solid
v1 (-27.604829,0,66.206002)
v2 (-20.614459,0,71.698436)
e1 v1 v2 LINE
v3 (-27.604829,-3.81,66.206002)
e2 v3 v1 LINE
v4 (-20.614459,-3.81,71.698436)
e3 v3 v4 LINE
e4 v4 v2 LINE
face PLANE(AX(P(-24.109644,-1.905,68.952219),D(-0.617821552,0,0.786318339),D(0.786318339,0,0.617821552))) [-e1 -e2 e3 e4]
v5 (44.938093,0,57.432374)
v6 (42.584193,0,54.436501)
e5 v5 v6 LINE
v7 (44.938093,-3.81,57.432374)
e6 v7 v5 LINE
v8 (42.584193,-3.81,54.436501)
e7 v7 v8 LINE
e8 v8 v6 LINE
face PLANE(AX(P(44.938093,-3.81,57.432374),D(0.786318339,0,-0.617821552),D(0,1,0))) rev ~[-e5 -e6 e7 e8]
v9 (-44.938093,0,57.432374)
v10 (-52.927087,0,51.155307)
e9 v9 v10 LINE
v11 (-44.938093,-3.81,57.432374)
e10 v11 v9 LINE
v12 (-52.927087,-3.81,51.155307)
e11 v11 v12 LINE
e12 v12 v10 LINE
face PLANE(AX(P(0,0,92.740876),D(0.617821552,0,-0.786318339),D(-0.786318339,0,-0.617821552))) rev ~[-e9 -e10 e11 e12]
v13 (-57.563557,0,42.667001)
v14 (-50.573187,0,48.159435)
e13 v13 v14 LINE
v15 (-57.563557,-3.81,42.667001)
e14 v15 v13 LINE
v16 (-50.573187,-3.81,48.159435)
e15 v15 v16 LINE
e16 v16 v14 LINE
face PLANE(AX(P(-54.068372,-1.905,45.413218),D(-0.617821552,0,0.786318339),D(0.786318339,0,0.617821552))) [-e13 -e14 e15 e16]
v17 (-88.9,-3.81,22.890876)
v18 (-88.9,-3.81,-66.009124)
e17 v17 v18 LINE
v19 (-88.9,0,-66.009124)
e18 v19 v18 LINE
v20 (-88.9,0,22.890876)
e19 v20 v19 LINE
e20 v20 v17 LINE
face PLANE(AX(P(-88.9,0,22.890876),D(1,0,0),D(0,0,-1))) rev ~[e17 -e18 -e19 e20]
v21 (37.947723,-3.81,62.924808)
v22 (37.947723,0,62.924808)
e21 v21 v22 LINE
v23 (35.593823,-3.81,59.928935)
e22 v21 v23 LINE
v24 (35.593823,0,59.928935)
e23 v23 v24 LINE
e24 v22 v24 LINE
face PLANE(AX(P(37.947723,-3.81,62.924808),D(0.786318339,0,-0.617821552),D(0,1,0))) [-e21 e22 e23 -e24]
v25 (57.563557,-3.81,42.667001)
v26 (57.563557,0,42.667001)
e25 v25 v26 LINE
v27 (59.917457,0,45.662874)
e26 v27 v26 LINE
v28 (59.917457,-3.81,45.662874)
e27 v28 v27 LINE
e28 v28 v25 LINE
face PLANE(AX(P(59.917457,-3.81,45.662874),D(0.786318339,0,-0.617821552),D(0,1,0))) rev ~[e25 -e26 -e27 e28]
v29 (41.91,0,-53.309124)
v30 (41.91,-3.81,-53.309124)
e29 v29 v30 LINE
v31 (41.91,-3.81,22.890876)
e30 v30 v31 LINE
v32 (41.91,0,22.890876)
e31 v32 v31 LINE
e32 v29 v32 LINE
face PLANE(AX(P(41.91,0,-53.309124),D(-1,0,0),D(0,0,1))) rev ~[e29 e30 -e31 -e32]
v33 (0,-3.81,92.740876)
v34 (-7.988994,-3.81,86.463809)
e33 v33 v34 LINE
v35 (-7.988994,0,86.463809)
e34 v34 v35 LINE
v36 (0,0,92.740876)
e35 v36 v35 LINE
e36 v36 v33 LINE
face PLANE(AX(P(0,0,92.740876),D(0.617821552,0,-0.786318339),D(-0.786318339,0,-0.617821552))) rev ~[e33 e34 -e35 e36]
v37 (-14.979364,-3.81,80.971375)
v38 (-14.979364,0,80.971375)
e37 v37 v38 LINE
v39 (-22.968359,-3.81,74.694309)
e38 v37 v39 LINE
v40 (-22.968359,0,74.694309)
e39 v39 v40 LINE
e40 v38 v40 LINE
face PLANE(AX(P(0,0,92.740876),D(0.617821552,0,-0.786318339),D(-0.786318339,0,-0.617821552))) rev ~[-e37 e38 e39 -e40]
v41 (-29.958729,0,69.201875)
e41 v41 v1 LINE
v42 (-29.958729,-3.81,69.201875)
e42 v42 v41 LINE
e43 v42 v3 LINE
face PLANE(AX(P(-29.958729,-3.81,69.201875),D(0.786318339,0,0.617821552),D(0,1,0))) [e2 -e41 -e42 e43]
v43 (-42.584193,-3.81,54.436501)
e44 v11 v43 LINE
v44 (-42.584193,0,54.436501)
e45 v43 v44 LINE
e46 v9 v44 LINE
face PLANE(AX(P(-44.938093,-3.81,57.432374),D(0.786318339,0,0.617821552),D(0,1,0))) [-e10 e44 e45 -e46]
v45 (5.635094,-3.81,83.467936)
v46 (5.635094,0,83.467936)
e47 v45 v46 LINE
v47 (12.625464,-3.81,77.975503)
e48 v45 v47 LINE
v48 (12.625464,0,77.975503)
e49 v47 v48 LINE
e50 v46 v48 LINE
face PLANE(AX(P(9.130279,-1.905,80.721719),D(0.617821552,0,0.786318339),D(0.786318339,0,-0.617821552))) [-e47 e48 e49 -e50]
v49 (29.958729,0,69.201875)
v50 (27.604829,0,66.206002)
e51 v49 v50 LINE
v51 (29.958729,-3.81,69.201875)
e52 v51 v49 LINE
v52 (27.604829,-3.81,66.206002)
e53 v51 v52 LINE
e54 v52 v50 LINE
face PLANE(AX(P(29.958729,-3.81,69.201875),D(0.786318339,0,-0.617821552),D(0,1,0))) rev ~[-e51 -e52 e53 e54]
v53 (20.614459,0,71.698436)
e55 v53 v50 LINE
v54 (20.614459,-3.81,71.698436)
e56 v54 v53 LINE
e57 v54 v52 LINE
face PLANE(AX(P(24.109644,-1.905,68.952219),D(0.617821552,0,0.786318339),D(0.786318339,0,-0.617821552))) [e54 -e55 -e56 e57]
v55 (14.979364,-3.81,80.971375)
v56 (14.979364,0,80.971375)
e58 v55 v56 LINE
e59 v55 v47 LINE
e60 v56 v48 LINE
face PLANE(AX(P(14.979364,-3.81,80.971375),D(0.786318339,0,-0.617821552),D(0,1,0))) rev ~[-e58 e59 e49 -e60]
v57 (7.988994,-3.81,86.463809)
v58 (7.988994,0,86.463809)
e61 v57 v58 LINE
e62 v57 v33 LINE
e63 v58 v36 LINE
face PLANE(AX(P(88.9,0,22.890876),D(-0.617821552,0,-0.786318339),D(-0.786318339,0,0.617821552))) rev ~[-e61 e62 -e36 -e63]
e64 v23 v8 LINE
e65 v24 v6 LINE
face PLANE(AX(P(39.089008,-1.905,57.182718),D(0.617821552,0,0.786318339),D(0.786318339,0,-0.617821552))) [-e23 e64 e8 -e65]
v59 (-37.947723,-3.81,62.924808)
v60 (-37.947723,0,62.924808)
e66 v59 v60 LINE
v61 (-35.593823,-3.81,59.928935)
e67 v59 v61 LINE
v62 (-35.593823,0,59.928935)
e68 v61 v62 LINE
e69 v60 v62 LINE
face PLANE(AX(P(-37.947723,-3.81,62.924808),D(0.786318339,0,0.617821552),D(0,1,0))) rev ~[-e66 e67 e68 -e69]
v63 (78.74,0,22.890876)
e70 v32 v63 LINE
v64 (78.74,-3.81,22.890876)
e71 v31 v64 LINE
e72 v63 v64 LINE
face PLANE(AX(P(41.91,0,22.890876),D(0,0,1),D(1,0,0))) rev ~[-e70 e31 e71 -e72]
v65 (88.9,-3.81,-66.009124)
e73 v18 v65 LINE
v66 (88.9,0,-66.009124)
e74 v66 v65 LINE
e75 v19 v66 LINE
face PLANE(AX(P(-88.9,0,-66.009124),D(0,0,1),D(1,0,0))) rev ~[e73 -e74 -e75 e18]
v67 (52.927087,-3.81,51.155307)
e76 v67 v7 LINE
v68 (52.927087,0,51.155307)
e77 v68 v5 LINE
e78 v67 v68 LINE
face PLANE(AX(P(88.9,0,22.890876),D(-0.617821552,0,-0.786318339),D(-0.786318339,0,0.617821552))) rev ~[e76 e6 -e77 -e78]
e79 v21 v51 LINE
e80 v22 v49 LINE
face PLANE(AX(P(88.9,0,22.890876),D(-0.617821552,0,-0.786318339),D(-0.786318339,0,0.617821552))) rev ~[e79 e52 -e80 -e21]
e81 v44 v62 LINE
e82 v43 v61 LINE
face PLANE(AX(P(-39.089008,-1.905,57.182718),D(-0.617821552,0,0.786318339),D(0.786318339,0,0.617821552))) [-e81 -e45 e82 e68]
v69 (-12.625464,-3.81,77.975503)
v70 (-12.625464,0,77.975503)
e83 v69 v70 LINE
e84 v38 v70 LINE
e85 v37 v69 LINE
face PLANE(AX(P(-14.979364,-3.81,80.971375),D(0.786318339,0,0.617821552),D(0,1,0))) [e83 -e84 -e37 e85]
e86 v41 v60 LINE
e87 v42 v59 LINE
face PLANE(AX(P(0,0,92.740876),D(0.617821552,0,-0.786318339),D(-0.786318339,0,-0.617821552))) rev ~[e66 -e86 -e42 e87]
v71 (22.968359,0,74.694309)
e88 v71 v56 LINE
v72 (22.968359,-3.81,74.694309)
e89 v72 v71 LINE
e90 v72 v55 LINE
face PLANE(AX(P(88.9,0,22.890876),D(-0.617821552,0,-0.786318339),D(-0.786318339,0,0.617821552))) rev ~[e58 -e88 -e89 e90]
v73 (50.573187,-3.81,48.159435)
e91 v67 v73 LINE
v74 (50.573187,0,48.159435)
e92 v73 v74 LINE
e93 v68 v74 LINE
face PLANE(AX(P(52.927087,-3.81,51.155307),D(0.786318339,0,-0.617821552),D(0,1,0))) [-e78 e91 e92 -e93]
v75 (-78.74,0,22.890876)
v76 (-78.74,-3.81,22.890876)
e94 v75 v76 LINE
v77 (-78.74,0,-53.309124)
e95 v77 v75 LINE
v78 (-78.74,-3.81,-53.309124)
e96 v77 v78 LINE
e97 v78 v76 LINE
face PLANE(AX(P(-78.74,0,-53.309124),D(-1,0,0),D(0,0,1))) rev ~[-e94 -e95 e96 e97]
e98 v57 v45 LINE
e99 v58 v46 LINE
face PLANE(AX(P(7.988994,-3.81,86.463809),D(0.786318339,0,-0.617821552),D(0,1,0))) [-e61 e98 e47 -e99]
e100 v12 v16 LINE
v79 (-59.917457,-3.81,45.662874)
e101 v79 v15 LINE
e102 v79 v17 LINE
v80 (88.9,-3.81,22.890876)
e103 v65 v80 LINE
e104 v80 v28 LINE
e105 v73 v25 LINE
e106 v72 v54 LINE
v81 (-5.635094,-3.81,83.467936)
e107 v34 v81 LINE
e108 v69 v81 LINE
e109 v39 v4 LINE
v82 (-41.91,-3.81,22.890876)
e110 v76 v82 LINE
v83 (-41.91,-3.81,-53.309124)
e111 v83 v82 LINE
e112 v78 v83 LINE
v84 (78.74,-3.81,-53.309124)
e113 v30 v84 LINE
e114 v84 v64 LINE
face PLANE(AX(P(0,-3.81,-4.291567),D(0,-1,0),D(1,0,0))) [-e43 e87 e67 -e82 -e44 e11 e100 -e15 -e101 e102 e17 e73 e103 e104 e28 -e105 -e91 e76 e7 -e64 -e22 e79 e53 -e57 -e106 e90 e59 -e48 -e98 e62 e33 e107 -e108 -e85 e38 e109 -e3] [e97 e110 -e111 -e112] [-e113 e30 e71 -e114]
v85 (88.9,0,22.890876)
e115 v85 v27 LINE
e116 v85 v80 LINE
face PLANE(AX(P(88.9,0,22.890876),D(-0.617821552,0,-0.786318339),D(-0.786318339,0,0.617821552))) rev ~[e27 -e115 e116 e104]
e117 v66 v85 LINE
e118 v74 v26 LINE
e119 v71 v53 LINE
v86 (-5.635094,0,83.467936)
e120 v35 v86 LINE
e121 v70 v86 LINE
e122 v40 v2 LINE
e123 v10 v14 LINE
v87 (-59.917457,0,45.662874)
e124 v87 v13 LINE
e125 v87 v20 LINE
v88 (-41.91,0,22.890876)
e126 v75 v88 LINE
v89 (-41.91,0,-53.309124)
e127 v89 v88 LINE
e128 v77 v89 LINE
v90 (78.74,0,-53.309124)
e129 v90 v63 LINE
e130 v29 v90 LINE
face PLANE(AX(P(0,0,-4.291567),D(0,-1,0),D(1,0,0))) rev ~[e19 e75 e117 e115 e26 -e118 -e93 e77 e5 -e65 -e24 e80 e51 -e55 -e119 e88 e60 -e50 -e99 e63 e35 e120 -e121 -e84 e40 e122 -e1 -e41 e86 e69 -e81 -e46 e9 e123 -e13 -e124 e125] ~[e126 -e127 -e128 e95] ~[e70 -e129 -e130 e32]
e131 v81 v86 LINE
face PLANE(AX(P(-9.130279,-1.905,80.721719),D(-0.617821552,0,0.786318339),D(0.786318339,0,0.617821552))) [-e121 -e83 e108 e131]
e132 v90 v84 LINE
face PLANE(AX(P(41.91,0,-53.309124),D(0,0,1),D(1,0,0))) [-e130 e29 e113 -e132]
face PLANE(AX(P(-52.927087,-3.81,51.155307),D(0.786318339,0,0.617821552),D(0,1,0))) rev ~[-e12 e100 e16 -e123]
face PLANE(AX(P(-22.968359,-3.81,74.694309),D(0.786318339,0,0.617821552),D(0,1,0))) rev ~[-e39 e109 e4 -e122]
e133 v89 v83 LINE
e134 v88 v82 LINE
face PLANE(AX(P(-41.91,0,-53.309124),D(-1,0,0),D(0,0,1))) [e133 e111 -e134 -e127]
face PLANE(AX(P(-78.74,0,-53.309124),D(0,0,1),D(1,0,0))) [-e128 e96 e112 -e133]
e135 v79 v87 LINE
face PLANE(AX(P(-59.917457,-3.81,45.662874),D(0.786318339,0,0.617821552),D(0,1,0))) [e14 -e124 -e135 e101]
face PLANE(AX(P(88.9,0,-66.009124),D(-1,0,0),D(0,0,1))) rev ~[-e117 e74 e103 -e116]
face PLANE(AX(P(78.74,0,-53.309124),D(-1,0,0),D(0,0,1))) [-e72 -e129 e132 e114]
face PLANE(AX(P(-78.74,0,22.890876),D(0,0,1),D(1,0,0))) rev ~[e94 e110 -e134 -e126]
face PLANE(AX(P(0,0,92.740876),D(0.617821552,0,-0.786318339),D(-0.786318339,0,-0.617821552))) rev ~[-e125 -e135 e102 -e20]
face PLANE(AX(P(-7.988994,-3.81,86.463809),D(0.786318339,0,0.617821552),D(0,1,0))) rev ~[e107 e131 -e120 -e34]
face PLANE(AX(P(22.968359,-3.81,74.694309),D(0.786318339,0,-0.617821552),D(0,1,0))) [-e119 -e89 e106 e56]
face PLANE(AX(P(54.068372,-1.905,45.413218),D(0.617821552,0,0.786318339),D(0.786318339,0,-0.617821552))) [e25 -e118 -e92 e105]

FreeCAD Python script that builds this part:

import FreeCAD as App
import Part
import Sketcher

V = App.Vector
Q = App.Units.Quantity


def add_polygon(sketch, points):
    """Adds a closed chain of lines whose ends are joined by coincident constraints."""
    first, n = sketch.GeometryCount, len(points)
    for a, b in zip(points, points[1:] + points[:1]):
        sketch.addGeometry(Part.LineSegment(App.Vector(*a, 0), App.Vector(*b, 0)), False)
    for i in range(n):
        sketch.addConstraint(Sketcher.Constraint("Coincident", first + i, 2, first + (i + 1) % n, 1))

doc = App.newDocument("Part")
body = doc.addObject("PartDesign::Body", "Body")

# Sketch on XZ plane
sketch1 = body.newObject("Sketcher::SketchObject", "Sketch")
sketch1.AttachmentSupport = (doc.getObject("XZ_Plane"), [""])
sketch1.MapMode = "FlatFace"
add_polygon(sketch1, [(-89, -66), (89, -66), (89, 23), (0, 93), (-89, 23)])  # lines 0-4
add_polygon(sketch1, [(-42, -53), (-79, -53), (-79, 23), (-42, 23)])  # lines 5-8
add_polygon(sketch1, [(79, -53), (42, -53), (42, 23), (79, 23)])  # lines 9-12
sketch1.addConstraint([
    Sketcher.Constraint("Horizontal", 0),
    Sketcher.Constraint("Vertical", 1),
    Sketcher.Constraint("Vertical", 4),
    Sketcher.Constraint("Horizontal", 5),
    Sketcher.Constraint("Vertical", 6),
    Sketcher.Constraint("Horizontal", 7),
    Sketcher.Constraint("Vertical", 8),
    Sketcher.Constraint("Horizontal", 9),
    Sketcher.Constraint("Vertical", 10),
    Sketcher.Constraint("Horizontal", 11),
    Sketcher.Constraint("Vertical", 12),
    Sketcher.Constraint("Symmetric", 1, 2, 3, 2, -2),
    Sketcher.Constraint("Symmetric", 8, 2, 9, 2, -2),
    Sketcher.Constraint("Symmetric", 6, 2, 11, 2, -2),
    Sketcher.Constraint("PointOnObject", 2, 2, -2),
    Sketcher.Constraint("Horizontal", 3, 2, 6, 2),
    Sketcher.Constraint("DistanceX", 0, 1, 0, 2, Q("7 in")),
    Sketcher.Constraint("DistanceY", 6, 1, 6, 2, Q("3 in")),
    Sketcher.Constraint("DistanceY", 1, 1, 1, 2, Q("3.5 in")),
    Sketcher.Constraint("DistanceX", 5, 2, 5, 1, Q("1.45 in")),
    Sketcher.Constraint("DistanceX", 5, 2, -1, 1, Q("3.1 in")),
    Sketcher.Constraint("DistanceY", 1, 2, 2, 2, Q("2.75 in")),
    Sketcher.Constraint("DistanceY", 0, 2, -1, 1, Q("66.009124 mm")),
])
pad1 = body.newObject("PartDesign::Pad", "Pad")
pad1.Profile = sketch1
pad1.Length = Q("0.15 in")

# Sketch on an angled plane
sketch2 = body.newObject("Sketcher::SketchObject", "Sketch001")
sketch2.Placement = App.Placement(V(-45.053927, 0, 57.341362), App.Rotation(V(0.786318339, 0, 0.617821552), V(0, 1, 0), V(-0.617821552, 0, 0.786318339), "ZXY"))
add_polygon(sketch2, [(-18.9, 0), (-18.9, -3.8), (-10, -3.8), (-10, 0)])  # lines 0-3
add_polygon(sketch2, [(19.2, 0), (19.2, -3.8), (28.1, -3.8), (28.1, 0)])  # lines 4-7
add_polygon(sketch2, [(38.2, 0), (38.2, -3.8), (47.1, -3.8), (47.1, 0)])  # lines 8-11
add_polygon(sketch2, [(0.1, 0), (0.1, -3.8), (9, -3.8), (9, 0)])  # lines 12-15
sketch2.addConstraint([
    Sketcher.Constraint("Vertical", 0),
    Sketcher.Constraint("Horizontal", 1),
    Sketcher.Constraint("Vertical", 2),
    Sketcher.Constraint("Horizontal", 3),
    Sketcher.Constraint("Vertical", 4),
    Sketcher.Constraint("Horizontal", 5),
    Sketcher.Constraint("Vertical", 6),
    Sketcher.Constraint("Horizontal", 7),
    Sketcher.Constraint("Vertical", 8),
    Sketcher.Constraint("Horizontal", 9),
    Sketcher.Constraint("Vertical", 10),
    Sketcher.Constraint("Horizontal", 11),
    Sketcher.Constraint("Vertical", 12),
    Sketcher.Constraint("Horizontal", 13),
    Sketcher.Constraint("Vertical", 14),
    Sketcher.Constraint("Horizontal", 15),
    Sketcher.Constraint("PointOnObject", 2, 2, -1),
    Sketcher.Constraint("PointOnObject", 6, 2, -1),
    Sketcher.Constraint("PointOnObject", 10, 2, -1),
    Sketcher.Constraint("PointOnObject", 14, 2, -1),
    Sketcher.Constraint("Horizontal", 1, 2, 4, 2),
    Sketcher.Constraint("Horizontal", 5, 2, 8, 2),
    Sketcher.Constraint("Horizontal", 9, 2, 12, 2),
    Sketcher.Constraint("Equal", 3, 5),
    Sketcher.Constraint("Equal", 7, 9),
    Sketcher.Constraint("Equal", 11, 13),
    Sketcher.Constraint("DistanceX", 1, 1, 1, 2, Q("0.35 in")),
    Sketcher.Constraint("DistanceY", 0, 2, 0, 1, Q("0.15 in")),
    Sketcher.Constraint("DistanceX", 0, 2, 4, 2, Q("1.5 in")),
    Sketcher.Constraint("DistanceX", 5, 2, 8, 2, Q("0.4 in")),
    Sketcher.Constraint("DistanceX", 1, 2, 12, 2, Q("0.4 in")),
    Sketcher.Constraint("DistanceX", 0, 2, -1, 1, Q("18.902688 mm")),
])
pocket1 = body.newObject("PartDesign::Pocket", "Pocket")
pocket1.Profile = sketch2
pocket1.Length = Q("0.15 in")

# Sketch on an angled plane
sketch3 = body.newObject("Sketcher::SketchObject", "Sketch002")
sketch3.Placement = App.Placement(V(45.053927, 0, 57.341362), App.Rotation(V(0.786318339, 0, -0.617821552), V(0, 1, 0), V(0.617821552, 0, 0.786318339), "ZXY"))
add_polygon(sketch3, [(-47.1, 0), (-47.1, -3.8), (-38.2, -3.8), (-38.2, 0)])  # lines 0-3
add_polygon(sketch3, [(-28.1, 0), (-28.1, -3.8), (-19.2, -3.8), (-19.2, 0)])  # lines 4-7
add_polygon(sketch3, [(-9, 0), (-9, -3.8), (-0.1, -3.8), (-0.1, 0)])  # lines 8-11
add_polygon(sketch3, [(10, 0), (10, -3.8), (18.9, -3.8), (18.9, 0)])  # lines 12-15
sketch3.addConstraint([
    Sketcher.Constraint("Vertical", 0),
    Sketcher.Constraint("Horizontal", 1),
    Sketcher.Constraint("Vertical", 2),
    Sketcher.Constraint("Horizontal", 3),
    Sketcher.Constraint("Vertical", 4),
    Sketcher.Constraint("Horizontal", 5),
    Sketcher.Constraint("Vertical", 6),
    Sketcher.Constraint("Horizontal", 7),
    Sketcher.Constraint("Vertical", 8),
    Sketcher.Constraint("Horizontal", 9),
    Sketcher.Constraint("Vertical", 10),
    Sketcher.Constraint("Horizontal", 11),
    Sketcher.Constraint("Vertical", 12),
    Sketcher.Constraint("Horizontal", 13),
    Sketcher.Constraint("Vertical", 14),
    Sketcher.Constraint("Horizontal", 15),
    Sketcher.Constraint("PointOnObject", 2, 2, -1),
    Sketcher.Constraint("PointOnObject", 6, 2, -1),
    Sketcher.Constraint("PointOnObject", 10, 2, -1),
    Sketcher.Constraint("PointOnObject", 14, 2, -1),
    Sketcher.Constraint("Horizontal", 1, 2, 4, 2),
    Sketcher.Constraint("Horizontal", 5, 2, 8, 2),
    Sketcher.Constraint("Horizontal", 9, 2, 12, 2),
    Sketcher.Constraint("Equal", 3, 5),
    Sketcher.Constraint("Equal", 7, 9),
    Sketcher.Constraint("Equal", 11, 13),
    Sketcher.Constraint("DistanceX", 1, 1, 1, 2, Q("0.35 in")),
    Sketcher.Constraint("DistanceY", 0, 2, 0, 1, Q("0.15 in")),
    Sketcher.Constraint("DistanceX", 1, 2, 4, 2, Q("0.4 in")),
    Sketcher.Constraint("DistanceX", 5, 2, 8, 2, Q("0.4 in")),
    Sketcher.Constraint("DistanceX", 9, 2, 12, 2, Q("0.4 in")),
    Sketcher.Constraint("DistanceX", 0, 2, -1, 1, Q("47.137312 mm")),
])
pocket2 = body.newObject("PartDesign::Pocket", "Pocket001")
pocket2.Profile = sketch3
pocket2.Length = Q("0.15 in")

doc.recompute()
